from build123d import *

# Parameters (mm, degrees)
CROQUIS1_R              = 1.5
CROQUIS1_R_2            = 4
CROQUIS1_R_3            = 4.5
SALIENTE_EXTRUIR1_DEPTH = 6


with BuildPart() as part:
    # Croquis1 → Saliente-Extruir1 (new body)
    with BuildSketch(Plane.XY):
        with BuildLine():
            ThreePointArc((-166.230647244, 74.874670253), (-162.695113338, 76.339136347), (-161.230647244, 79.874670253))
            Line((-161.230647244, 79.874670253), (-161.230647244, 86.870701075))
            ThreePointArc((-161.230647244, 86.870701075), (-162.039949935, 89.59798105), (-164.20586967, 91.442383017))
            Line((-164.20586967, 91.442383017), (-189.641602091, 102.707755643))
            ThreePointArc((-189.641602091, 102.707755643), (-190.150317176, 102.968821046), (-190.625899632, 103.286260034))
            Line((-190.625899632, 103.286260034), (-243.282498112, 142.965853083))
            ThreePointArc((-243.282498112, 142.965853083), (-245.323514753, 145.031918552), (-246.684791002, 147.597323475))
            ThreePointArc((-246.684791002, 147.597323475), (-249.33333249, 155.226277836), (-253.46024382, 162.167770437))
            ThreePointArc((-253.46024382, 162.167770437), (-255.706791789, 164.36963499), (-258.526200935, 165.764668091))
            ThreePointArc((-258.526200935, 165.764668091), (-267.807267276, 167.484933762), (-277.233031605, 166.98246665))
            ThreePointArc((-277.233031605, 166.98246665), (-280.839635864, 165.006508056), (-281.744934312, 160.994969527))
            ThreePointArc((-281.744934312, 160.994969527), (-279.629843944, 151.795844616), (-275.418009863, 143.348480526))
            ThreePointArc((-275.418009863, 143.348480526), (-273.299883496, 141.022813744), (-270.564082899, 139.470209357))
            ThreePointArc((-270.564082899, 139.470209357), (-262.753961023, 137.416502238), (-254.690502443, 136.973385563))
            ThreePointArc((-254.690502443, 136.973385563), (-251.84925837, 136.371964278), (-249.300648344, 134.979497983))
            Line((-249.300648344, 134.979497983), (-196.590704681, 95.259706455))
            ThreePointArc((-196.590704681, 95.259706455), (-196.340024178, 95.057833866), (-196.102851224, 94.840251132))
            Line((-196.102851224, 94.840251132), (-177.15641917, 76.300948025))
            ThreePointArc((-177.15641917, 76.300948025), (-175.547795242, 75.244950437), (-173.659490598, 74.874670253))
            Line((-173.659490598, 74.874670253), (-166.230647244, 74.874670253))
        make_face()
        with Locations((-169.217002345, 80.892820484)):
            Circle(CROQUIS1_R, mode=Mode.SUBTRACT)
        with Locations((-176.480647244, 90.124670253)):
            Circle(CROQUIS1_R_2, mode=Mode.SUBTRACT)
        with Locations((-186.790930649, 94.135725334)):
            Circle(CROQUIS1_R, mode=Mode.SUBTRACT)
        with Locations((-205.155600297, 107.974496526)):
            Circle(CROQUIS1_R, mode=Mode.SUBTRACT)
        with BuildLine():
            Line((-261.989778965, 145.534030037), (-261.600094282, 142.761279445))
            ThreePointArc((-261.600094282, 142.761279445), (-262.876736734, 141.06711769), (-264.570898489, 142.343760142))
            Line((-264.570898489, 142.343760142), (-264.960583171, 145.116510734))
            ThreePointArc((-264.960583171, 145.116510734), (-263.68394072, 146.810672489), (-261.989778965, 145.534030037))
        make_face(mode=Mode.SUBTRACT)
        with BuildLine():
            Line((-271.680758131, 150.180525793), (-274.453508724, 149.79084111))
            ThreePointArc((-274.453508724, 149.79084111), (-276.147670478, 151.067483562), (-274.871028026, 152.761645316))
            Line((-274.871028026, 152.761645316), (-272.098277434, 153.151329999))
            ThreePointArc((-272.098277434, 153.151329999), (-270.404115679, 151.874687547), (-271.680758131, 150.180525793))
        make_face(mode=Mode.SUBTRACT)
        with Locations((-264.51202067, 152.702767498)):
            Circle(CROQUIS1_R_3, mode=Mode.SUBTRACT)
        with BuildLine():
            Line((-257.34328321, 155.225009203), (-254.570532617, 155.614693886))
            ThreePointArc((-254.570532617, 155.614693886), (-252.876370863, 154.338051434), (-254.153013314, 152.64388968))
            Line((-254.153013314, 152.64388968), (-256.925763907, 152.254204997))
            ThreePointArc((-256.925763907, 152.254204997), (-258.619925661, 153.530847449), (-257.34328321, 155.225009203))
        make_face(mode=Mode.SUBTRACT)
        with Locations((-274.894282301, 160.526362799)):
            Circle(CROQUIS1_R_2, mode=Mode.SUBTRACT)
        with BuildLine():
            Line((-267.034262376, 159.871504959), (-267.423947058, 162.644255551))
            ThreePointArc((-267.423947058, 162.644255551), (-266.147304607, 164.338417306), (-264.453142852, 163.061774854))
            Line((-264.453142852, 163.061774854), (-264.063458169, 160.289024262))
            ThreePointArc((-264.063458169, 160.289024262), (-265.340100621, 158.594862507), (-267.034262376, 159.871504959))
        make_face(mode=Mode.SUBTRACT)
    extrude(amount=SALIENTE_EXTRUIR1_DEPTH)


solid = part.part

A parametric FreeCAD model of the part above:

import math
import FreeCAD as App
import Part
import Sketcher

V = App.Vector
Q = App.Units.Quantity

doc = App.newDocument("Part")
params = doc.addObject("Spreadsheet::Sheet", "Params")
for row, (alias, value) in enumerate([
    ("sketch1_diameter", "3 mm"),
    ("sketch1_diameter2", "8 mm"),
    ("sketch1_diameter3", "9 mm"),
    ("sketch1_radius", "5 mm"),
    ("sketch1_radius2", "10 mm"),
    ("pad1_length", "6 mm"),
], start=1):
    params.set(f"A{row}", alias)
    params.set(f"B{row}", "=" + value)
    params.setAlias(f"B{row}", alias)

body = doc.addObject("PartDesign::Body", "Body")

# Sketch on XY plane
sketch1 = doc.addObject("Sketcher::SketchObject", "Sketch")
body.addObject(sketch1)
sketch1.AttachmentSupport = (doc.XY_Plane, [""])
sketch1.MapMode = "FlatFace"
sketch1.addGeometry([
    Part.ArcOfCircle(Part.Circle(V(-166.2, 79.9, 0), V(0, 0, 1), 5), math.radians(-90), math.radians(0)),  # 0
    Part.LineSegment(V(-161.2, 79.9, 0), V(-161.2, 86.9, 0)),  # 1
    Part.ArcOfCircle(Part.Circle(V(-166.2, 86.9, 0), V(0, 0, 1), 5), math.radians(0), math.radians(66)),  # 2
    Part.LineSegment(V(-164.2, 91.4, 0), V(-189.6, 102.7, 0)),  # 3
    Part.ArcOfCircle(Part.Circle(V(-187.6, 107.3, 0), V(0, 0, 1), 5), math.radians(-127), math.radians(-113.89)),  # 4
    Part.LineSegment(V(-190.6, 103.3, 0), V(-243.3, 143, 0)),  # 5
    Part.ArcOfCircle(Part.Circle(V(-237.3, 151, 0), V(0, 0, 1), 10), math.radians(-160), math.radians(-127)),  # 6
    Part.ArcOfCircle(Part.Circle(V(-285.6, 138.4, 0), V(0, 0, 1), 40), math.radians(13), math.radians(37)),  # 7
    Part.ArcOfCircle(Part.Circle(V(-261.5, 156.2, 0), V(0, 0, 1), 10), math.radians(37), math.radians(73)),  # 8
    Part.ArcOfCircle(Part.Circle(V(-270.4, 127.6, 0), V(0, 0, 1), 40), math.radians(73), math.radians(100)),  # 9
    Part.ArcOfCircle(Part.Circle(V(-276.8, 162, 0), V(0, 0, 1), 5), math.radians(94), math.radians(192)),  # 10
    Part.ArcOfCircle(Part.Circle(V(-242, 165.3, 0), V(0, 0, 1), 40), math.radians(-174), math.radians(-147)),  # 11
    Part.ArcOfCircle(Part.Circle(V(-267.1, 148.8, 0), V(0, 0, 1), 10), math.radians(-147), math.radians(-111)),  # 12
    Part.ArcOfCircle(Part.Circle(V(-256.5, 176.9, 0), V(0, 0, 1), 40), math.radians(-111), math.radians(-87)),  # 13
    Part.ArcOfCircle(Part.Circle(V(-255.3, 127, 0), V(0, 0, 1), 10), math.radians(53), math.radians(86)),  # 14
    Part.LineSegment(V(-249.3, 135, 0), V(-196.6, 95.3, 0)),  # 15
    Part.ArcOfCircle(Part.Circle(V(-199.6, 91.3, 0), V(0, 0, 1), 5), math.radians(45.62), math.radians(53)),  # 16
    Part.LineSegment(V(-196.1, 94.8, 0), V(-177.2, 76.3, 0)),  # 17
    Part.ArcOfCircle(Part.Circle(V(-173.7, 79.9, 0), V(0, 0, 1), 5), math.radians(-134), math.radians(-90)),  # 18
    Part.LineSegment(V(-173.7, 74.9, 0), V(-166.2, 74.9, 0)),  # 19
    Part.Circle(V(-169.2, 80.9, 0), V(0, 0, 1), 1.5),  # 20
    Part.Circle(V(-186.8, 94.1, 0), V(0, 0, 1), 1.5),  # 21
    Part.Circle(V(-176.5, 90.1, 0), V(0, 0, 1), 4),  # 22
    Part.Circle(V(-205.2, 108, 0), V(0, 0, 1), 1.5),  # 23
    Part.ArcOfCircle(Part.Circle(V(-271.9, 151.7, 0), V(0, 0, 1), 1.5), math.radians(-82), math.radians(98)),  # 24
    Part.LineSegment(V(-271.7, 150.2, 0), V(-274.5, 149.8, 0)),  # 25
    Part.ArcOfCircle(Part.Circle(V(-274.7, 151.3, 0), V(0, 0, 1), 1.5), math.radians(98), math.radians(278)),  # 26
    Part.LineSegment(V(-274.9, 152.8, 0), V(-272.1, 153.2, 0)),  # 27
    Part.ArcOfCircle(Part.Circle(V(-263.5, 145.3, 0), V(0, 0, 1), 1.5), math.radians(8), math.radians(188)),  # 28
    Part.LineSegment(V(-262, 145.5, 0), V(-261.6, 142.8, 0)),  # 29
    Part.ArcOfCircle(Part.Circle(V(-263.1, 142.6, 0), V(0, 0, 1), 1.5), math.radians(-172), math.radians(8)),  # 30
    Part.LineSegment(V(-264.6, 142.3, 0), V(-265, 145.1, 0)),  # 31
    Part.Circle(V(-264.5, 152.7, 0), V(0, 0, 1), 4.5),  # 32
    Part.Circle(V(-274.9, 160.5, 0), V(0, 0, 1), 4),  # 33
    Part.ArcOfCircle(Part.Circle(V(-265.5, 160.1, 0), V(0, 0, 1), 1.5), math.radians(-172), math.radians(8)),  # 34
    Part.LineSegment(V(-267, 159.9, 0), V(-267.4, 162.6, 0)),  # 35
    Part.ArcOfCircle(Part.Circle(V(-265.9, 162.9, 0), V(0, 0, 1), 1.5), math.radians(8), math.radians(188)),  # 36
    Part.LineSegment(V(-264.5, 163.1, 0), V(-264.1, 160.3, 0)),  # 37
    Part.ArcOfCircle(Part.Circle(V(-257.1, 153.7, 0), V(0, 0, 1), 1.5), math.radians(98), math.radians(278)),  # 38
    Part.LineSegment(V(-257.3, 155.2, 0), V(-254.6, 155.6, 0)),  # 39
    Part.ArcOfCircle(Part.Circle(V(-254.4, 154.1, 0), V(0, 0, 1), 1.5), math.radians(-82), math.radians(98)),  # 40
    Part.LineSegment(V(-254.2, 152.6, 0), V(-256.9, 152.3, 0)),  # 41
], False)
sketch1.addConstraint([
    Sketcher.Constraint("Tangent", 0, 2, 1, 1),
    Sketcher.Constraint("Tangent", 1, 2, 2, 1),
    Sketcher.Constraint("Tangent", 2, 2, 3, 1),
    Sketcher.Constraint("Tangent", 3, 2, 4, 2),
    Sketcher.Constraint("Tangent", 4, 1, 5, 1),
    Sketcher.Constraint("Tangent", 5, 2, 6, 2),
    Sketcher.Constraint("Coincident", 6, 1, 7, 1),
    Sketcher.Constraint("Tangent", 7, 2, 8, 1),
    Sketcher.Constraint("Tangent", 8, 2, 9, 1),
    Sketcher.Constraint("Coincident", 9, 2, 10, 1),
    Sketcher.Constraint("Coincident", 10, 2, 11, 1),
    Sketcher.Constraint("Tangent", 11, 2, 12, 1),
    Sketcher.Constraint("Tangent", 12, 2, 13, 1),
    Sketcher.Constraint("Coincident", 13, 2, 14, 2),
    Sketcher.Constraint("Tangent", 14, 1, 15, 1),
    Sketcher.Constraint("Tangent", 15, 2, 16, 2),
    Sketcher.Constraint("Tangent", 16, 1, 17, 1),
    Sketcher.Constraint("Tangent", 17, 2, 18, 1),
    Sketcher.Constraint("Tangent", 18, 2, 19, 1),
    Sketcher.Constraint("Tangent", 19, 2, 0, 1),
    Sketcher.Constraint("Tangent", 24, 1, 25, 1),
    Sketcher.Constraint("Tangent", 25, 2, 26, 2),
    Sketcher.Constraint("Tangent", 26, 1, 27, 1),
    Sketcher.Constraint("Tangent", 27, 2, 24, 2),
    Sketcher.Constraint("Tangent", 28, 1, 29, 1),
    Sketcher.Constraint("Tangent", 29, 2, 30, 2),
    Sketcher.Constraint("Tangent", 30, 1, 31, 1),
    Sketcher.Constraint("Tangent", 31, 2, 28, 2),
    Sketcher.Constraint("Tangent", 34, 1, 35, 1),
    Sketcher.Constraint("Tangent", 35, 2, 36, 2),
    Sketcher.Constraint("Tangent", 36, 1, 37, 1),
    Sketcher.Constraint("Tangent", 37, 2, 34, 2),
    Sketcher.Constraint("Tangent", 38, 1, 39, 1),
    Sketcher.Constraint("Tangent", 39, 2, 40, 2),
    Sketcher.Constraint("Tangent", 40, 1, 41, 1),
    Sketcher.Constraint("Tangent", 41, 2, 38, 2),
    Sketcher.Constraint("Vertical", 1),
    Sketcher.Constraint("Horizontal", 19),
    Sketcher.Constraint("Equal", 0, 2),
    Sketcher.Constraint("Equal", 2, 4),
    Sketcher.Constraint("Equal", 6, 8),
    Sketcher.Constraint("Equal", 7, 9),
    Sketcher.Constraint("Equal", 4, 10),
    Sketcher.Constraint("Equal", 9, 11),
    Sketcher.Constraint("Equal", 8, 12),
    Sketcher.Constraint("Equal", 11, 13),
    Sketcher.Constraint("Equal", 12, 14),
    Sketcher.Constraint("Equal", 10, 16),
    Sketcher.Constraint("Equal", 16, 18),
    Sketcher.Constraint("Equal", 20, 21),
    Sketcher.Constraint("Equal", 21, 23),
    Sketcher.Constraint("Equal", 23, 24),
    Sketcher.Constraint("Equal", 24, 26),
    Sketcher.Constraint("Equal", 26, 28),
    Sketcher.Constraint("Equal", 28, 30),
    Sketcher.Constraint("Equal", 22, 33),
    Sketcher.Constraint("Equal", 30, 34),
    Sketcher.Constraint("Equal", 34, 36),
    Sketcher.Constraint("Equal", 36, 38),
    Sketcher.Constraint("Equal", 38, 40),
    Sketcher.Constraint("Parallel", 5, 15),
    Sketcher.Constraint("Perpendicular", 27, 29),
    Sketcher.Constraint("Parallel", 31, 35),
    Sketcher.Constraint("Perpendicular", 37, 39),
    Sketcher.Constraint("Equal", 27, 29),
    Sketcher.Constraint("Equal", 31, 35),
    Sketcher.Constraint("Equal", 37, 39),
    Sketcher.Constraint("Diameter", 20, Q("3 mm")),
    Sketcher.Constraint("Diameter", 22, Q("8 mm")),
    Sketcher.Constraint("Diameter", 32, Q("9 mm")),
    Sketcher.Constraint("Radius", 0, Q("5 mm")),
    Sketcher.Constraint("Radius", 6, Q("10 mm")),
    Sketcher.Constraint("Radius", 7, Q("40 mm")),
    Sketcher.Constraint("Angle", 5, Q("143 deg")),
    Sketcher.Constraint("Angle", 25, Q("-172 deg")),
    Sketcher.Constraint("Distance", 15, Q("66 mm")),
    Sketcher.Constraint("Distance", 25, Q("2.8 mm")),
    Sketcher.Constraint("DistanceY", 1, 1, 1, 2, Q("6.996031 mm")),
    Sketcher.Constraint("DistanceY", -1, 1, 2, 3, Q("86.870701 mm")),
    Sketcher.Constraint("DistanceX", 14, 3, -1, 1, Q("255.318799 mm")),
    Sketcher.Constraint("DistanceX", 23, 3, -1, 1, Q("205.1556 mm")),
    Sketcher.Constraint("DistanceX", 4, 1, -1, 1, Q("190.6259 mm")),
    Sketcher.Constraint("DistanceX", 5, 2, -1, 1, Q("243.282498 mm")),
    Sketcher.Constraint("DistanceX", 8, 2, -1, 1, Q("258.526201 mm")),
    Sketcher.Constraint("DistanceX", 30, 1, -1, 1, Q("264.570898 mm")),
    Sketcher.Constraint("Distance", 3, Q("27.81879 mm")),
    Sketcher.Constraint("Distance", 17, Q("26.507981 mm")),
    Sketcher.Constraint("DistanceX", 19, 1, 19, 2, Q("7.428843 mm")),
    Sketcher.Constraint("DistanceY", -1, 1, 6, 3, Q("150.952208 mm")),
    Sketcher.Constraint("DistanceX", 10, 3, -1, 1, Q("276.846458 mm")),
    Sketcher.Constraint("DistanceY", -1, 1, 13, 3, Q("176.930669 mm")),
    Sketcher.Constraint("DistanceY", -1, 1, 20, 3, Q("80.89282 mm")),
    Sketcher.Constraint("DistanceX", 21, 3, -1, 1, Q("186.790931 mm")),
    Sketcher.Constraint("DistanceY", -1, 1, 22, 3, Q("90.12467 mm")),
    Sketcher.Constraint("DistanceX", 26, 3, -1, 1, Q("274.662268 mm")),
    Sketcher.Constraint("DistanceY", -1, 1, 28, 3, Q("145.32527 mm")),
    Sketcher.Constraint("DistanceX", 32, 3, -1, 1, Q("264.512021 mm")),
    Sketcher.Constraint("DistanceX", 34, 3, -1, 1, Q("265.54886 mm")),
    Sketcher.Constraint("DistanceY", -1, 1, 40, 3, Q("154.129292 mm")),
    Sketcher.Constraint("DistanceX", 6, 1, -1, 1, Q("246.684791 mm")),
    Sketcher.Constraint("DistanceY", -1, 1, 7, 2, Q("162.16777 mm")),
    Sketcher.Constraint("DistanceY", -1, 1, 8, 2, Q("165.764668 mm")),
    Sketcher.Constraint("DistanceX", 9, 2, -1, 1, Q("277.233032 mm")),
    Sketcher.Constraint("DistanceY", -1, 1, 10, 2, Q("160.99497 mm")),
    Sketcher.Constraint("DistanceX", 11, 2, -1, 1, Q("275.41801 mm")),
    Sketcher.Constraint("DistanceY", -1, 1, 11, 2, Q("143.348481 mm")),
    Sketcher.Constraint("DistanceY", -1, 1, 25, 2, Q("149.790841 mm")),
    Sketcher.Constraint("DistanceX", 20, 3, -1, 1, Q("169.217002 mm")),
    Sketcher.Constraint("DistanceY", -1, 1, 21, 3, Q("94.135725 mm")),
    Sketcher.Constraint("DistanceX", 22, 3, -1, 1, Q("176.480647 mm")),
    Sketcher.Constraint("DistanceY", -1, 1, 23, 3, Q("107.974497 mm")),
    Sketcher.Constraint("DistanceY", -1, 1, 32, 3, Q("152.702767 mm")),
    Sketcher.Constraint("DistanceX", 33, 3, -1, 1, Q("274.894282 mm")),
    Sketcher.Constraint("DistanceY", -1, 1, 33, 3, Q("160.526363 mm")),
    Sketcher.Constraint("DistanceY", -1, 1, 34, 3, Q("160.080265 mm")),
    Sketcher.Constraint("DistanceX", 38, 3, -1, 1, Q("257.134524 mm")),
])
sketch1.setExpression("Constraints[67]", "Params.sketch1_diameter")
sketch1.setExpression("Constraints[68]", "Params.sketch1_diameter2")
sketch1.setExpression("Constraints[69]", "Params.sketch1_diameter3")
sketch1.setExpression("Constraints[70]", "Params.sketch1_radius")
sketch1.setExpression("Constraints[71]", "Params.sketch1_radius2")
pad1 = doc.addObject("PartDesign::Pad", "Pad")
body.addObject(pad1)
pad1.Profile = sketch1
pad1.setExpression("Length", "Params.pad1_length")

doc.recompute()
